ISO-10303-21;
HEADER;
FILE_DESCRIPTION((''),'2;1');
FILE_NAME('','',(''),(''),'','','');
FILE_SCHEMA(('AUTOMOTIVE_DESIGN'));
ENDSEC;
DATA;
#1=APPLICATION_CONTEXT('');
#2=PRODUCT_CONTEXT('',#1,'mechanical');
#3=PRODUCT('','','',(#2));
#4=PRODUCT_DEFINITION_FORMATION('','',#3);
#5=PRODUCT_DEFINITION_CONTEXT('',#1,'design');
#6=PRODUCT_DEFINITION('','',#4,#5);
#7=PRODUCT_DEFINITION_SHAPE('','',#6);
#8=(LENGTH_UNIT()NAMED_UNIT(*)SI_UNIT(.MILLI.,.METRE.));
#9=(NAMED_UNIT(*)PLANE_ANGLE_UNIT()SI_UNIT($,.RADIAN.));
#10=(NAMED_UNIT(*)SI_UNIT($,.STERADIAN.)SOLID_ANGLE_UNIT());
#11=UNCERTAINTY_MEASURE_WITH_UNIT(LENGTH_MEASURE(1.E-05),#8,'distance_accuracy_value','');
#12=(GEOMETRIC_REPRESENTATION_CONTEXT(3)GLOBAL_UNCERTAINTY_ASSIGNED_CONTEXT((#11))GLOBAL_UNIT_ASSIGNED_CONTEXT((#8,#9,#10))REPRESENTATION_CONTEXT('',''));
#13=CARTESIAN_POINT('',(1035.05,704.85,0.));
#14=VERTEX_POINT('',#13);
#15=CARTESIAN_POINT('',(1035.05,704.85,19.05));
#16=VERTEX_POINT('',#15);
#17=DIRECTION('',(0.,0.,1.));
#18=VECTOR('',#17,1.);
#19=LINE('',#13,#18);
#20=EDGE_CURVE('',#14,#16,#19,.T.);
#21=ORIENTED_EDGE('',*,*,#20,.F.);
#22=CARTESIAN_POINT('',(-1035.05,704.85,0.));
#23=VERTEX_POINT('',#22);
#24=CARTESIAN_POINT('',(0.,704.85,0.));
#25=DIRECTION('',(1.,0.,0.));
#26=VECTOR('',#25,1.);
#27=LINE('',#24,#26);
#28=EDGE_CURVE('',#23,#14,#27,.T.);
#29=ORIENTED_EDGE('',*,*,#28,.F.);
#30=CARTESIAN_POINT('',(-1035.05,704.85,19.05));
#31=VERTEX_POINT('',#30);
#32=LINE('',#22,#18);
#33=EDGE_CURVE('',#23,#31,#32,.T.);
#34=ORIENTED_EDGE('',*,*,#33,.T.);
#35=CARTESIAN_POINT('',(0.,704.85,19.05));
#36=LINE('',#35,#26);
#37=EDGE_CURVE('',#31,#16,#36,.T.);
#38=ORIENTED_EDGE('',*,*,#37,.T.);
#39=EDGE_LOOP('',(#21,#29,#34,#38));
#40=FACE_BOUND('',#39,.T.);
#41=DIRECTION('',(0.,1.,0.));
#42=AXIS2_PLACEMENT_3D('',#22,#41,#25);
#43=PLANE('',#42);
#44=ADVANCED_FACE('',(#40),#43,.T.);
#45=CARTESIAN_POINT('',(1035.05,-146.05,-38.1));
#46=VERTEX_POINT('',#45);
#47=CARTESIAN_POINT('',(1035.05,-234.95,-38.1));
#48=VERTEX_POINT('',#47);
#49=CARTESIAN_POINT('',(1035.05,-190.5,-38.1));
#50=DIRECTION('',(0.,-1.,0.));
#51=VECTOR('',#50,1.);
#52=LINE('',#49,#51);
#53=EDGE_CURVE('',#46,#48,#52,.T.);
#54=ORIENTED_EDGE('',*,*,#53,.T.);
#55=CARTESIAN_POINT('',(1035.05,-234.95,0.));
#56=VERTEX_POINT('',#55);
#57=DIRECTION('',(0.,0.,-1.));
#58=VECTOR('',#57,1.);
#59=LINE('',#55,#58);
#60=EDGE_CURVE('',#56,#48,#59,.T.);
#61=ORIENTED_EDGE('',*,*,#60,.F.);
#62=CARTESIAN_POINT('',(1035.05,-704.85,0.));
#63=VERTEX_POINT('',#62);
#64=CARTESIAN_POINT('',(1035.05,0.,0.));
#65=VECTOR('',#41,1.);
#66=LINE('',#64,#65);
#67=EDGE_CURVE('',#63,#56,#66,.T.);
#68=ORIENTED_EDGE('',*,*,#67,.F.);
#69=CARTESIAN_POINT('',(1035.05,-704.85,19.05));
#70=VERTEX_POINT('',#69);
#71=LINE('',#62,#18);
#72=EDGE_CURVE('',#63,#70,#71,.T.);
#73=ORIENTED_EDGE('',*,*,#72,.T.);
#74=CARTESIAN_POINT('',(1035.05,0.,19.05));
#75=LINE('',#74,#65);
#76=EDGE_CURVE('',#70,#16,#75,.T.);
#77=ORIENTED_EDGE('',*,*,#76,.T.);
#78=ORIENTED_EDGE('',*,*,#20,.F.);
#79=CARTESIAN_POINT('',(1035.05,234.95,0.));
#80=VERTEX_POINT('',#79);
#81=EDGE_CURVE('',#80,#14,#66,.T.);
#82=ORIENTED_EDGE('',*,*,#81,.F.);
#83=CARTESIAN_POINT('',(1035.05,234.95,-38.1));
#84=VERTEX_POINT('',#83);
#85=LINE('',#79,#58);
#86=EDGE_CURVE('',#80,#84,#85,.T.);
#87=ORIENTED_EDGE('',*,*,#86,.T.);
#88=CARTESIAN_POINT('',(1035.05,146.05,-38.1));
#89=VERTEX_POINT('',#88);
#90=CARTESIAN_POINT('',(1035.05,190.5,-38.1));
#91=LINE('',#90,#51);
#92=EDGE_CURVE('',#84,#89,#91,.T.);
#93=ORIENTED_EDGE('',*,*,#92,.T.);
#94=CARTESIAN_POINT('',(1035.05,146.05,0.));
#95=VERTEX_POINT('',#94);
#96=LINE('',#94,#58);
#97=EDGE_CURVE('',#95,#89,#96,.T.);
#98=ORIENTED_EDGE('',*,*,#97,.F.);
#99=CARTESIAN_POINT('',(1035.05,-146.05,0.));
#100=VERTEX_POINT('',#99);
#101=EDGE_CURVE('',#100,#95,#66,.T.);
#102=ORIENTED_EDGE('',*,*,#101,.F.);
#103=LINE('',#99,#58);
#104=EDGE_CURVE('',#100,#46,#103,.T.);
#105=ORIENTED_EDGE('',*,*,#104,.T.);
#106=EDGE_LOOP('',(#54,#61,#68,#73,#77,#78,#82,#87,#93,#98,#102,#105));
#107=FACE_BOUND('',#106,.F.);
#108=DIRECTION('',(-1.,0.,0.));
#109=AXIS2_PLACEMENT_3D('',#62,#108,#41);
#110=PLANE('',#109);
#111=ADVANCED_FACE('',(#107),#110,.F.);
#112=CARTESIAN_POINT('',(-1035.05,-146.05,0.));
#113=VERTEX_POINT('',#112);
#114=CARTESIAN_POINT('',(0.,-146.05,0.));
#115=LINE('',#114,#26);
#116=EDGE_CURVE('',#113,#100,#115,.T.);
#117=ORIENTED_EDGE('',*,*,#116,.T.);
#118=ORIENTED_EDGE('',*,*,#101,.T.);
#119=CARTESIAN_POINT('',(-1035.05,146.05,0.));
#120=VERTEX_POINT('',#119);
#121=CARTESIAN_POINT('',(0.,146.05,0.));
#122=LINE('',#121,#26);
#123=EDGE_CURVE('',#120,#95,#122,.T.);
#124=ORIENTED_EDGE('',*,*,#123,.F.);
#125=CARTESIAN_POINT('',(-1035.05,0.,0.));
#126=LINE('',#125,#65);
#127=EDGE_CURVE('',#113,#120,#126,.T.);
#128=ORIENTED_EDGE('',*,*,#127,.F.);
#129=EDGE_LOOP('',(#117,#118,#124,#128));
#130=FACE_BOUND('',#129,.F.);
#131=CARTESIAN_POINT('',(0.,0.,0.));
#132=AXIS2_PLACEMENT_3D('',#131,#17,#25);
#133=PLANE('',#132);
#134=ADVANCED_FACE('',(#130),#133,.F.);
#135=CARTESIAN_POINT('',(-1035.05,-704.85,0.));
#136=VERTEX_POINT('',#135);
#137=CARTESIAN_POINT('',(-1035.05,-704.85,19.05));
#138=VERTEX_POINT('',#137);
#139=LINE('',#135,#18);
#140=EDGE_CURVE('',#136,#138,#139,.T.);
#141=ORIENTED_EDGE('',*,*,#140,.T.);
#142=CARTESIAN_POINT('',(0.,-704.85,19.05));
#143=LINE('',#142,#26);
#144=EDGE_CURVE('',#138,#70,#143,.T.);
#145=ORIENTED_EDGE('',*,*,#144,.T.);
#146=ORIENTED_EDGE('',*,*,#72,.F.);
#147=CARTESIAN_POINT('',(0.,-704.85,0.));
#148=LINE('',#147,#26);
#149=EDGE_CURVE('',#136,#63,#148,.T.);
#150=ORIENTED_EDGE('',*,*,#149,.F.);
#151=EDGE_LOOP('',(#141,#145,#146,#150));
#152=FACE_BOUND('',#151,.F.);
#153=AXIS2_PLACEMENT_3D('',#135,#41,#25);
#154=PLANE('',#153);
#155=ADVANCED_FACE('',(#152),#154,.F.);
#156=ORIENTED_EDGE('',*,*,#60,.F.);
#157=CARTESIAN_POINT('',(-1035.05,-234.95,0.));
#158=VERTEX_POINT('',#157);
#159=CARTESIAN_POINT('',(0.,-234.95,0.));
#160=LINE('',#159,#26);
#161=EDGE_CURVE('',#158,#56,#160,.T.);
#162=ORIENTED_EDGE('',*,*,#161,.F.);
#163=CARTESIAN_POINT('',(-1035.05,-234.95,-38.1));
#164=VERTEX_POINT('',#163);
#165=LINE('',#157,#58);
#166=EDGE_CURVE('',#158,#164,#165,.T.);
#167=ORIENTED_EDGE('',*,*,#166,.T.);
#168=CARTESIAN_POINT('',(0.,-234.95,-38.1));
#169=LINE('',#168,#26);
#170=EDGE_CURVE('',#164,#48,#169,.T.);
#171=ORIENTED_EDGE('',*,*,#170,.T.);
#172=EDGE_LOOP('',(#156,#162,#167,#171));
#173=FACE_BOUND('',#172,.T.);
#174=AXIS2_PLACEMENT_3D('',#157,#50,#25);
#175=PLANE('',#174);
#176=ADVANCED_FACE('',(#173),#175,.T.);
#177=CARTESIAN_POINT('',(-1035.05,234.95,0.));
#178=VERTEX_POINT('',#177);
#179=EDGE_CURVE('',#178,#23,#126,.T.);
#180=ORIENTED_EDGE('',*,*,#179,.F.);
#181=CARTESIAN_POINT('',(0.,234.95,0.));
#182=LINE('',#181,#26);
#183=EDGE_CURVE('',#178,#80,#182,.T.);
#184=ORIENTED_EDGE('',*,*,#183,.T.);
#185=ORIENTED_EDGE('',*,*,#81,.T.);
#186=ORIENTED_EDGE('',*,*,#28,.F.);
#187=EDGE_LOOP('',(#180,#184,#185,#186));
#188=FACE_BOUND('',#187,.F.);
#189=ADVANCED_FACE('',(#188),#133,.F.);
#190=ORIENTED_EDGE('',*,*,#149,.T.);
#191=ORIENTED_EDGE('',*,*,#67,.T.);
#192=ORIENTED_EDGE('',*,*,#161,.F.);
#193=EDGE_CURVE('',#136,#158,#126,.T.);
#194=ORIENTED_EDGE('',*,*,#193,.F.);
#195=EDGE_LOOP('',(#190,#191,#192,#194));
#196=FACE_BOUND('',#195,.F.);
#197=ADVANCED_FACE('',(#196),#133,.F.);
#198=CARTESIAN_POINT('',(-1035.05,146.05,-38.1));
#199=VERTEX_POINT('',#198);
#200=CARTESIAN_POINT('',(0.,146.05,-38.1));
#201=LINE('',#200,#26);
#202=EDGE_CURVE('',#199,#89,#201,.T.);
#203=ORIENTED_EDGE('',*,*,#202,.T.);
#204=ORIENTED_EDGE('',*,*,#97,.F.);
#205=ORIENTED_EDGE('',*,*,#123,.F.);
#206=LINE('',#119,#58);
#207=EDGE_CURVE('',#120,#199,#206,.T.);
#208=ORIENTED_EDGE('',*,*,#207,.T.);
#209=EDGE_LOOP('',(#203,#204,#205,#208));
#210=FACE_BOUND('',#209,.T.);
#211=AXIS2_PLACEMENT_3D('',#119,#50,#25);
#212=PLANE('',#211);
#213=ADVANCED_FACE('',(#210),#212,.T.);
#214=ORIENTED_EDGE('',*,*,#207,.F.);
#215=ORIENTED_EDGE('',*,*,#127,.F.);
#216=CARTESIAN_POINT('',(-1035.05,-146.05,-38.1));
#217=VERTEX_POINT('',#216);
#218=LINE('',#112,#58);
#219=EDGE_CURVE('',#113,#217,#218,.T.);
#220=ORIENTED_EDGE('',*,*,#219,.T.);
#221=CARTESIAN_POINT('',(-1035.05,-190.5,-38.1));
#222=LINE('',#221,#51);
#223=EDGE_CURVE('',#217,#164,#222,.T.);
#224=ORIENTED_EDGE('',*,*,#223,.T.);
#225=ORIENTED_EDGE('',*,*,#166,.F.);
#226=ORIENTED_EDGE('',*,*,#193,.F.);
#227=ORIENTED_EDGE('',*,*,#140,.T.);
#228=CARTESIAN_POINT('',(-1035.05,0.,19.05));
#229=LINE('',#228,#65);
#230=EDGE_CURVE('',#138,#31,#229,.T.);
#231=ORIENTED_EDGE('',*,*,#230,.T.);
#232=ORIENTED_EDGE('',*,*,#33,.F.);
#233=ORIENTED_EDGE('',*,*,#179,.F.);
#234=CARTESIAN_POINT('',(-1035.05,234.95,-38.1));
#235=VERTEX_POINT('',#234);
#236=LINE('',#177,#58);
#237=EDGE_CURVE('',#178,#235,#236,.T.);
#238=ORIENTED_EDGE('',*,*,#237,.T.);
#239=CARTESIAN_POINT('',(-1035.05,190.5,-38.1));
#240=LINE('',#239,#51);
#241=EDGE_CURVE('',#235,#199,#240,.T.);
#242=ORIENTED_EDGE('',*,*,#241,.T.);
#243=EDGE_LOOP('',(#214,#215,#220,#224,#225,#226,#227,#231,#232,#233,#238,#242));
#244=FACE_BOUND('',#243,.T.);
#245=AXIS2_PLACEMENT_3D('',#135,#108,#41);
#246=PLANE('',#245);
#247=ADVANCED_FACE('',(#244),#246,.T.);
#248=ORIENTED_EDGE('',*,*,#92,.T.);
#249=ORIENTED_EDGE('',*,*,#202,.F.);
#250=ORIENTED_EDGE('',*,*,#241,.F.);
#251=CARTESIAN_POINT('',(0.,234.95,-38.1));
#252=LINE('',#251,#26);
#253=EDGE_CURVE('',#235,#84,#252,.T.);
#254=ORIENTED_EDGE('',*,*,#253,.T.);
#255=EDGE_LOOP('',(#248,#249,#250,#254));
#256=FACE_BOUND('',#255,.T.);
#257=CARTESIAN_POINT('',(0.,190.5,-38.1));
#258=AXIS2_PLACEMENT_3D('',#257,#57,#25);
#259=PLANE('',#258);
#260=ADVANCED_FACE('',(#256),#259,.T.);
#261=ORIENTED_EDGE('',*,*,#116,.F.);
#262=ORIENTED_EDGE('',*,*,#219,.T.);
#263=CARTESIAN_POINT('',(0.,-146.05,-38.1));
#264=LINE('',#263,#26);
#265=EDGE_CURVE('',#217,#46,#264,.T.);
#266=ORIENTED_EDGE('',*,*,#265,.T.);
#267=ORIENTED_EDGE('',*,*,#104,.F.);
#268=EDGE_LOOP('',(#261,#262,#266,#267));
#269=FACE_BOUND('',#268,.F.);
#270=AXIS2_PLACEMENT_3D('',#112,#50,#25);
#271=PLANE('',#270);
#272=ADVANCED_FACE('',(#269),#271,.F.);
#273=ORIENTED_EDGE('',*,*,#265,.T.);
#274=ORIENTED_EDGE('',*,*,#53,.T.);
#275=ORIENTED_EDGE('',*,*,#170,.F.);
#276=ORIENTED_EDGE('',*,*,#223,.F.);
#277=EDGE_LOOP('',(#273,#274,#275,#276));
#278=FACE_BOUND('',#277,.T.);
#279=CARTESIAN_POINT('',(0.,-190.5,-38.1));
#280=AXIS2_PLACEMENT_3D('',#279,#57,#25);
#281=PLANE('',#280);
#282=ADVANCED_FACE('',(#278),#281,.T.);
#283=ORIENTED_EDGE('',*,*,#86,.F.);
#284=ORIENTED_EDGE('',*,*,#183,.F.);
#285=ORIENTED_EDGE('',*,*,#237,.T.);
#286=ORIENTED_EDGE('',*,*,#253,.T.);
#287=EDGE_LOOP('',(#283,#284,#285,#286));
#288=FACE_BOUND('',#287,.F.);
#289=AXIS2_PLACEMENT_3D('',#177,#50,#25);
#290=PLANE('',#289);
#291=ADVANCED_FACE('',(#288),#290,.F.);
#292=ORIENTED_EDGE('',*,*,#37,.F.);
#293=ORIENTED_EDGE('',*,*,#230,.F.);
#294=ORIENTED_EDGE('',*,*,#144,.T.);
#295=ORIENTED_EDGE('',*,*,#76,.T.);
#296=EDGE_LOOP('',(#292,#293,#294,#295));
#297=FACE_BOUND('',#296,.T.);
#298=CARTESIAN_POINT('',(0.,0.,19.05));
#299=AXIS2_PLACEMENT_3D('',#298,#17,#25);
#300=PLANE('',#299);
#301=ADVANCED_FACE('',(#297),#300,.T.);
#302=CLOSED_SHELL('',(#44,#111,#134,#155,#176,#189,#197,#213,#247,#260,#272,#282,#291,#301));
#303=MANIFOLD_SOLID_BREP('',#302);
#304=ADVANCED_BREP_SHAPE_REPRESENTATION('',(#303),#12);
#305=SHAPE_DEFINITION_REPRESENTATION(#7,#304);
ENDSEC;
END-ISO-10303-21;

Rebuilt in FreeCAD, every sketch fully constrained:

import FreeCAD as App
import Part
import Sketcher
Q = App.Units.Quantity

doc = App.newDocument("Part")
params = doc.addObject("Spreadsheet::Sheet", "Params")
for row, (alias, value) in enumerate([
    ("sketch1_width", "81.5 in"),
    ("sketch1_height", "55.5 in"),
    ("pad1_length", "0.75 in"),
    ("sketch2_width", "81.5 in"),
    ("sketch2_height", "3.5 in"),
    ("pad2_length", "1.5 in"),
], start=1):
    params.set(f"A{row}", alias)
    params.set(f"B{row}", "=" + value)
    params.setAlias(f"B{row}", alias)

body = doc.addObject("PartDesign::Body", "Body")

sketch1 = body.newObject("Sketcher::SketchObject", "Sketch")
sketch1.AttachmentSupport = (doc.getObject("XY_Plane"), [""])
sketch1.MapMode = "FlatFace"
sketch1.addGeometry(Part.LineSegment(App.Vector(-1035, 705, 0), App.Vector(-1035, -705, 0)), False)
sketch1.addGeometry(Part.LineSegment(App.Vector(-1035, -705, 0), App.Vector(1035, -705, 0)), False)
sketch1.addGeometry(Part.LineSegment(App.Vector(1035, -705, 0), App.Vector(1035, 705, 0)), False)
sketch1.addGeometry(Part.LineSegment(App.Vector(1035, 705, 0), App.Vector(-1035, 705, 0)), False)
sketch1.addConstraint(Sketcher.Constraint("Coincident", 0, 2, 1, 1))
sketch1.addConstraint(Sketcher.Constraint("Coincident", 1, 2, 2, 1))
sketch1.addConstraint(Sketcher.Constraint("Coincident", 2, 2, 3, 1))
sketch1.addConstraint(Sketcher.Constraint("Coincident", 3, 2, 0, 1))
sketch1.addConstraint(Sketcher.Constraint("Vertical", 0))
sketch1.addConstraint(Sketcher.Constraint("Horizontal", 1))
sketch1.addConstraint(Sketcher.Constraint("Vertical", 2))
sketch1.addConstraint(Sketcher.Constraint("Horizontal", 3))
sketch1.addConstraint(Sketcher.Constraint("Symmetric", 0, 2, 2, 2, -1, 1))
sketch1.addConstraint(Sketcher.Constraint("DistanceX", 1, 1, 1, 2, Q("81.5 in")))
sketch1.addConstraint(Sketcher.Constraint("DistanceY", 0, 2, 0, 1, Q("55.5 in")))
sketch1.setExpression("Constraints[9]", "Params.sketch1_width")
sketch1.setExpression("Constraints[10]", "Params.sketch1_height")
pad1 = body.newObject("PartDesign::Pad", "Pad")
pad1.Profile = sketch1
pad1.setExpression("Length", "Params.pad1_length")

sketch2 = body.newObject("Sketcher::SketchObject", "Sketch001")
sketch2.AttachmentSupport = (doc.getObject("XY_Plane"), [""])
sketch2.MapMode = "FlatFace"
sketch2.addGeometry(Part.LineSegment(App.Vector(-1035, -235, 0), App.Vector(-1035, -146, 0)), False)
sketch2.addGeometry(Part.LineSegment(App.Vector(-1035, -146, 0), App.Vector(1035, -146, 0)), False)
sketch2.addGeometry(Part.LineSegment(App.Vector(1035, -146, 0), App.Vector(1035, -235, 0)), False)
sketch2.addGeometry(Part.LineSegment(App.Vector(1035, -235, 0), App.Vector(-1035, -235, 0)), False)
sketch2.addGeometry(Part.LineSegment(App.Vector(-1035, 146, 0), App.Vector(-1035, 235, 0)), False)
sketch2.addGeometry(Part.LineSegment(App.Vector(-1035, 235, 0), App.Vector(1035, 235, 0)), False)
sketch2.addGeometry(Part.LineSegment(App.Vector(1035, 235, 0), App.Vector(1035, 146, 0)), False)
sketch2.addGeometry(Part.LineSegment(App.Vector(1035, 146, 0), App.Vector(-1035, 146, 0)), False)
sketch2.addConstraint(Sketcher.Constraint("Coincident", 0, 2, 1, 1))
sketch2.addConstraint(Sketcher.Constraint("Coincident", 1, 2, 2, 1))
sketch2.addConstraint(Sketcher.Constraint("Coincident", 2, 2, 3, 1))
sketch2.addConstraint(Sketcher.Constraint("Coincident", 3, 2, 0, 1))
sketch2.addConstraint(Sketcher.Constraint("Coincident", 4, 2, 5, 1))
sketch2.addConstraint(Sketcher.Constraint("Coincident", 5, 2, 6, 1))
sketch2.addConstraint(Sketcher.Constraint("Coincident", 6, 2, 7, 1))
sketch2.addConstraint(Sketcher.Constraint("Coincident", 7, 2, 4, 1))
sketch2.addConstraint(Sketcher.Constraint("Vertical", 0))
sketch2.addConstraint(Sketcher.Constraint("Horizontal", 1))
sketch2.addConstraint(Sketcher.Constraint("Vertical", 2))
sketch2.addConstraint(Sketcher.Constraint("Horizontal", 3))
sketch2.addConstraint(Sketcher.Constraint("Vertical", 4))
sketch2.addConstraint(Sketcher.Constraint("Horizontal", 5))
sketch2.addConstraint(Sketcher.Constraint("Vertical", 6))
sketch2.addConstraint(Sketcher.Constraint("Horizontal", 7))
sketch2.addConstraint(Sketcher.Constraint("Symmetric", 2, 2, 4, 2, -1, 1))
sketch2.addConstraint(Sketcher.Constraint("Symmetric", 0, 2, 6, 2, -1, 1))
sketch2.addConstraint(Sketcher.Constraint("Vertical", 3, 2, 4, 2))
sketch2.addConstraint(Sketcher.Constraint("DistanceX", 1, 1, 1, 2, Q("81.5 in")))
sketch2.addConstraint(Sketcher.Constraint("DistanceY", 0, 1, 0, 2, Q("3.5 in")))
sketch2.addConstraint(Sketcher.Constraint("DistanceY", 0, 2, 4, 2, Q("15 in")))
sketch2.setExpression("Constraints[19]", "Params.sketch2_width")
sketch2.setExpression("Constraints[20]", "Params.sketch2_height")
pad2 = body.newObject("PartDesign::Pad", "Pad001")
pad2.Profile = sketch2
pad2.setExpression("Length", "Params.pad2_length")
pad2.Reversed = True

doc.recompute()
